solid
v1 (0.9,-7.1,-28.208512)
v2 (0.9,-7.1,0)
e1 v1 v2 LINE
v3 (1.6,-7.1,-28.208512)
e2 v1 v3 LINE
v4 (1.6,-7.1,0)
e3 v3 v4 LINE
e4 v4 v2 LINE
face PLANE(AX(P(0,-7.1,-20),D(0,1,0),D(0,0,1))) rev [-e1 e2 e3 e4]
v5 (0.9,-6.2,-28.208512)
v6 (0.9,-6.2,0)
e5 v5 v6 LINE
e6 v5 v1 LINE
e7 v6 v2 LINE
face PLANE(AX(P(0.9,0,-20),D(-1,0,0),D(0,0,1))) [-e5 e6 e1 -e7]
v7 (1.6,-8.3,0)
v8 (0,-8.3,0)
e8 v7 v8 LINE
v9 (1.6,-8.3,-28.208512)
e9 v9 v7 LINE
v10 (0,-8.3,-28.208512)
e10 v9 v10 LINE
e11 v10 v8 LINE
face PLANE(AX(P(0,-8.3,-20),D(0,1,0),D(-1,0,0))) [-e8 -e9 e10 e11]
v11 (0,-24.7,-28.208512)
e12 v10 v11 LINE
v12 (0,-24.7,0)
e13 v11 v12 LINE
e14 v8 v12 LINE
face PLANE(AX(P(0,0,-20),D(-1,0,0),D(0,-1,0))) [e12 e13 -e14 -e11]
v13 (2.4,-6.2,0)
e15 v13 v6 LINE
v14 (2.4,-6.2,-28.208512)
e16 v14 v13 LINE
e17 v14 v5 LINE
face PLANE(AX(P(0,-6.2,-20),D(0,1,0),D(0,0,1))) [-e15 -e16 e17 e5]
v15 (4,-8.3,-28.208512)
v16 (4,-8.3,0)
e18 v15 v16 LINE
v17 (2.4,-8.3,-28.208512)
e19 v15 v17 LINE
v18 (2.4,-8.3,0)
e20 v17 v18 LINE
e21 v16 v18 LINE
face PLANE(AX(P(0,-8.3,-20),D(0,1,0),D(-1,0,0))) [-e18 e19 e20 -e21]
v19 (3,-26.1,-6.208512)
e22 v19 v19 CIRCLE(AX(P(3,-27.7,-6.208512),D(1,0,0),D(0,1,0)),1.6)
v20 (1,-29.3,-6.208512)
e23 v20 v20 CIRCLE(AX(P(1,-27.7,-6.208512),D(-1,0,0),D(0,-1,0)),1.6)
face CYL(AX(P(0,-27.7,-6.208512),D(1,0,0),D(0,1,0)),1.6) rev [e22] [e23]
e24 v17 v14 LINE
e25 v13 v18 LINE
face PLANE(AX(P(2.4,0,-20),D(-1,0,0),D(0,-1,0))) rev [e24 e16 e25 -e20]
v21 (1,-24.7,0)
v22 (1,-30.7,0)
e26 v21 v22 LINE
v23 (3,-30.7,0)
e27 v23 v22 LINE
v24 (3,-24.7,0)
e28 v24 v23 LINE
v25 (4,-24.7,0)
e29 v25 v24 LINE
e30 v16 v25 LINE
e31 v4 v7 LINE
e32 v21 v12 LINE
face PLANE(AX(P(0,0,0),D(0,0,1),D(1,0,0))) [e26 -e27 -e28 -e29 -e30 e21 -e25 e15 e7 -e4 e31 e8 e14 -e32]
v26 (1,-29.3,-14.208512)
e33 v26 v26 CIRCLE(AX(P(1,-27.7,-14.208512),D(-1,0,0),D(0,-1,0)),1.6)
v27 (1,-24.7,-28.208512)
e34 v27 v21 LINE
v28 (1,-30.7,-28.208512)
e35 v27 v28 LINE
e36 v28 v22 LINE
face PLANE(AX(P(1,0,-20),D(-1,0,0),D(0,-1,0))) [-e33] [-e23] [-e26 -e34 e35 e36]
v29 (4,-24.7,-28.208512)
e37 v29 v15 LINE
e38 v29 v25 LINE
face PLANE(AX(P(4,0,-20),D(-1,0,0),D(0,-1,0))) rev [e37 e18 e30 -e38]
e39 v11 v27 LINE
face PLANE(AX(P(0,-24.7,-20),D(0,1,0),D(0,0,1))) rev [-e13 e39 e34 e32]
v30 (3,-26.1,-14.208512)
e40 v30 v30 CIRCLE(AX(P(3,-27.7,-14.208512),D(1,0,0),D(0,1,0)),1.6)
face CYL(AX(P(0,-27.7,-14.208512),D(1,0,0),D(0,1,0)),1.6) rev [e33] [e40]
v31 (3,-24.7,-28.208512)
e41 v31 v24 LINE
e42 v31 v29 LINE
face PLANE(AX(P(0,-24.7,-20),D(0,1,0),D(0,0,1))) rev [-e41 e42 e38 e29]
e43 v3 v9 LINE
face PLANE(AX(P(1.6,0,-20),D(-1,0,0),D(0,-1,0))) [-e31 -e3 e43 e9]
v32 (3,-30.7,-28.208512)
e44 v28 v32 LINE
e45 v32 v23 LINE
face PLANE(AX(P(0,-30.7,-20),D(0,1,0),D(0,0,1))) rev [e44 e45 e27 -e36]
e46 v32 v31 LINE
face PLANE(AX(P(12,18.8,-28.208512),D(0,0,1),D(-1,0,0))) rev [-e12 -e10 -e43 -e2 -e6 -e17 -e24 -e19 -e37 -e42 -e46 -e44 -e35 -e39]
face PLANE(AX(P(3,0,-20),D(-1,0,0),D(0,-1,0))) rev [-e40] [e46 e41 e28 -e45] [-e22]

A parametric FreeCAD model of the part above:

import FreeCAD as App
import Part
import Sketcher
from FreeCAD import Vector


def add_polygon(sketch, points):
    """Adds a closed chain of lines whose ends are joined by coincident constraints."""
    first, n = sketch.GeometryCount, len(points)
    for a, b in zip(points, points[1:] + points[:1]):
        sketch.addGeometry(Part.LineSegment(App.Vector(*a, 0), App.Vector(*b, 0)), False)
    for i in range(n):
        sketch.addConstraint(Sketcher.Constraint("Coincident", first + i, 2, first + (i + 1) % n, 1))

doc = App.newDocument("Part")
body = doc.addObject("PartDesign::Body", "Body")

# Sketch on XY plane
sketch1 = body.newObject("Sketcher::SketchObject", "Sketch")
sketch1.AttachmentSupport = (doc.getObject("XY_Plane"), [""])
sketch1.MapMode = "FlatFace"
add_polygon(sketch1, [(1.6, -7.1), (1.6, -8.3), (0, -8.3), (0, -24.7), (1, -24.7), (1, -30.7), (3, -30.7), (3, -24.7), (4, -24.7), (4, -8.3), (2.4, -8.3), (2.4, -6.2), (0.9, -6.2), (0.9, -7.1)])  # lines 0-13
sketch1.addConstraint([
    Sketcher.Constraint("Vertical", 0),
    Sketcher.Constraint("Horizontal", 1),
    Sketcher.Constraint("Vertical", 2),
    Sketcher.Constraint("Horizontal", 3),
    Sketcher.Constraint("Vertical", 4),
    Sketcher.Constraint("Horizontal", 5),
    Sketcher.Constraint("Vertical", 6),
    Sketcher.Constraint("Horizontal", 7),
    Sketcher.Constraint("Vertical", 8),
    Sketcher.Constraint("Horizontal", 9),
    Sketcher.Constraint("Vertical", 10),
    Sketcher.Constraint("Horizontal", 11),
    Sketcher.Constraint("Vertical", 12),
    Sketcher.Constraint("Horizontal", 13),
    Sketcher.Constraint("PointOnObject", 1, 2, -2),
    Sketcher.Constraint("Horizontal", 3, 2, 6, 2),
    Sketcher.Constraint("Horizontal", 1, 2, 8, 2),
    Sketcher.Constraint("Equal", 3, 7),
    Sketcher.Constraint("Equal", 1, 9),
    Sketcher.Constraint("DistanceX", 3, 1, 3, 2, 1.0),
    Sketcher.Constraint("DistanceX", 5, 1, 5, 2, 2.0),
    Sketcher.Constraint("DistanceY", 4, 2, 4, 1, 6.0),
    Sketcher.Constraint("DistanceX", 1, 2, 1, 1, 1.6),
    Sketcher.Constraint("DistanceX", 11, 2, 11, 1, 1.5),
    Sketcher.Constraint("DistanceY", 0, 2, 0, 1, 1.2),
    Sketcher.Constraint("DistanceY", 2, 2, 2, 1, 16.4),
    Sketcher.Constraint("DistanceY", 10, 1, 10, 2, 2.1),
    Sketcher.Constraint("DistanceY", 0, 2, -1, 1, 8.3),
])
pad1 = body.newObject("PartDesign::Pad", "Pad")
pad1.Profile = sketch1
pad1.Length = 20
pad1.Reversed = True

# Sketch on YZ plane
sketch2 = body.newObject("Sketcher::SketchObject", "Sketch001")
sketch2.AttachmentSupport = (doc.getObject("YZ_Plane"), [""])
sketch2.MapMode = "FlatFace"
sketch2.AttachmentOffset = App.Placement(Vector(0, 0, 3), App.Rotation())
sketch2.addGeometry([
    Part.Circle(Vector(-27.7, -6.2, 0), Vector(0, 0, 1), 1.6),
    Part.Circle(Vector(-27.7, -14.2, 0), Vector(0, 0, 1), 1.6),
], False)
sketch2.addConstraint([
    Sketcher.Constraint("Equal", 0, 1),
    Sketcher.Constraint("Vertical", 0, 3, 1, 3),
    Sketcher.Constraint("Diameter", 0, 3.2),
    Sketcher.Constraint("DistanceY", 1, 3, 0, 3, 8.0),
    Sketcher.Constraint("DistanceX", 0, 3, -1, 1, 27.7),
    Sketcher.Constraint("DistanceY", 0, 3, -1, 1, 6.208512),
])
pocket1 = body.newObject("PartDesign::Pocket", "Pocket")
pocket1.Profile = sketch2
pocket1.Type = "ThroughAll"

# Sketch on XY plane
sketch3 = body.newObject("Sketcher::SketchObject", "Sketch002")
sketch3.AttachmentSupport = (doc.getObject("XY_Plane"), [""])
sketch3.MapMode = "FlatFace"
sketch3.AttachmentOffset = App.Placement(Vector(0, 0, -20), App.Rotation())
add_polygon(sketch3, [(0.9, -6.2), (2.4, -6.2), (2.4, -8.3), (4, -8.3), (4, -24.7), (3, -24.7), (3, -30.7), (1, -30.7), (1, -24.7), (0, -24.7), (0, -8.3), (1.6, -8.3), (1.6, -7.1), (0.9, -7.1)])  # lines 0-13
sketch3.addConstraint([
    Sketcher.Constraint("Horizontal", 0),
    Sketcher.Constraint("Vertical", 1),
    Sketcher.Constraint("Horizontal", 2),
    Sketcher.Constraint("Vertical", 3),
    Sketcher.Constraint("Horizontal", 4),
    Sketcher.Constraint("Vertical", 5),
    Sketcher.Constraint("Horizontal", 6),
    Sketcher.Constraint("Vertical", 7),
    Sketcher.Constraint("Horizontal", 8),
    Sketcher.Constraint("Vertical", 9),
    Sketcher.Constraint("Horizontal", 10),
    Sketcher.Constraint("Vertical", 11),
    Sketcher.Constraint("Horizontal", 12),
    Sketcher.Constraint("Vertical", 13),
    Sketcher.Constraint("PointOnObject", 8, 2, -2),
    Sketcher.Constraint("Horizontal", 4, 2, 7, 2),
    Sketcher.Constraint("Horizontal", 2, 2, 9, 2),
    Sketcher.Constraint("Equal", 4, 8),
    Sketcher.Constraint("Equal", 2, 10),
    Sketcher.Constraint("DistanceX", 4, 2, 4, 1, 1.0),
    Sketcher.Constraint("DistanceX", 6, 2, 6, 1, 2.0),
    Sketcher.Constraint("DistanceY", 5, 2, 5, 1, 6.0),
    Sketcher.Constraint("DistanceX", 0, 1, 0, 2, 1.5),
    Sketcher.Constraint("DistanceX", 2, 1, 2, 2, 1.6),
    Sketcher.Constraint("DistanceY", 1, 2, 1, 1, 2.1),
    Sketcher.Constraint("DistanceY", 3, 2, 3, 1, 16.4),
    Sketcher.Constraint("DistanceY", 11, 1, 11, 2, 1.2),
    Sketcher.Constraint("DistanceY", 0, 2, -1, 1, 6.2),
])
pad2 = body.newObject("PartDesign::Pad", "Pad001")
pad2.Profile = sketch3
pad2.Length = 8.208512
pad2.Reversed = True

doc.recompute()
